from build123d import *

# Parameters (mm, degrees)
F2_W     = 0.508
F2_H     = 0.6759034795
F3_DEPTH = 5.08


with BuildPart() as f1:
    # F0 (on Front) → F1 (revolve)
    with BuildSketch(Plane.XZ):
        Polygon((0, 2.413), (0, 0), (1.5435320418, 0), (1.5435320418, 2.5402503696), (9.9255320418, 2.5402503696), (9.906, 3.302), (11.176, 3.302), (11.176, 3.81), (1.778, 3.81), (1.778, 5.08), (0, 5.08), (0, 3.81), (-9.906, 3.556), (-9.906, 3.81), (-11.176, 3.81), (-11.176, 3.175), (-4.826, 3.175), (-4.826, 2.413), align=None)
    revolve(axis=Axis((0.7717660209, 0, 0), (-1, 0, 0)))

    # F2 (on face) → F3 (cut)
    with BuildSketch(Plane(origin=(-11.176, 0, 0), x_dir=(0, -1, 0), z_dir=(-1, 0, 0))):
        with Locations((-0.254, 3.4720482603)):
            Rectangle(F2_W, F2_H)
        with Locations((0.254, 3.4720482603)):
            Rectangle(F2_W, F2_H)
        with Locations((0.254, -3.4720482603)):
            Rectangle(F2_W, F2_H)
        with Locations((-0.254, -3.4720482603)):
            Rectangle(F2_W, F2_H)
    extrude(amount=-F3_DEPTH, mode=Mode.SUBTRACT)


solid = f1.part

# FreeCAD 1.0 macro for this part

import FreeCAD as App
import Part
import Sketcher

V = App.Vector
Q = App.Units.Quantity


def add_polygon(sketch, points):
    """Adds a closed chain of lines whose ends are joined by coincident constraints."""
    first, n = sketch.GeometryCount, len(points)
    for a, b in zip(points, points[1:] + points[:1]):
        sketch.addGeometry(Part.LineSegment(App.Vector(*a, 0), App.Vector(*b, 0)), False)
    for i in range(n):
        sketch.addConstraint(Sketcher.Constraint("Coincident", first + i, 2, first + (i + 1) % n, 1))

doc = App.newDocument("Part")
params = doc.addObject("Spreadsheet::Sheet", "Params")
for row, (alias, value) in enumerate([
    ("sketch1_width", "0.33 in"),
    ("sketch1_width2", "0.05 in"),
    ("sketch1_width3", "0.37 in"),
    ("sketch1_width4", "0.07 in"),
    ("sketch1_width5", "0.25 in"),
    ("revolution_angle", "360 deg"),
    ("sketch2_width", "0.04 in"),
    ("pocket1_length", "0.2 in"),
], start=1):
    params.set(f"A{row}", alias)
    params.set(f"B{row}", "=" + value)
    params.setAlias(f"B{row}", alias)

body = doc.addObject("PartDesign::Body", "Body")

# Sketch on XZ plane
sketch1 = body.newObject("Sketcher::SketchObject", "Sketch")
sketch1.AttachmentSupport = (doc.getObject("XZ_Plane"), [""])
sketch1.MapMode = "FlatFace"
add_polygon(sketch1, [(0, 2.413), (0, 0), (1.543532, 0), (1.543532, 2.54025), (9.925532, 2.54025), (9.906, 3.302), (11.176, 3.302), (11.176, 3.81), (1.778, 3.81), (1.778, 5.08), (0, 5.08), (0, 3.81), (-9.906, 3.556), (-9.906, 3.81), (-11.176, 3.81), (-11.176, 3.175), (-4.826, 3.175), (-4.826, 2.413)])  # lines 0-17
sketch1.addConstraint(Sketcher.Constraint("Vertical", 0))
sketch1.addConstraint(Sketcher.Constraint("Horizontal", 1))
sketch1.addConstraint(Sketcher.Constraint("Vertical", 2))
sketch1.addConstraint(Sketcher.Constraint("Horizontal", 3))
sketch1.addConstraint(Sketcher.Constraint("Horizontal", 5))
sketch1.addConstraint(Sketcher.Constraint("Vertical", 6))
sketch1.addConstraint(Sketcher.Constraint("Horizontal", 7))
sketch1.addConstraint(Sketcher.Constraint("Vertical", 8))
sketch1.addConstraint(Sketcher.Constraint("Horizontal", 9))
sketch1.addConstraint(Sketcher.Constraint("Vertical", 10))
sketch1.addConstraint(Sketcher.Constraint("Vertical", 12))
sketch1.addConstraint(Sketcher.Constraint("Horizontal", 13))
sketch1.addConstraint(Sketcher.Constraint("Vertical", 14))
sketch1.addConstraint(Sketcher.Constraint("Horizontal", 15))
sketch1.addConstraint(Sketcher.Constraint("Vertical", 16))
sketch1.addConstraint(Sketcher.Constraint("Horizontal", 17))
sketch1.addConstraint(Sketcher.Constraint("Coincident", 0, 2, -1, 1))
sketch1.addConstraint(Sketcher.Constraint("Symmetric", 6, 2, 13, 2, -2))
sketch1.addConstraint(Sketcher.Constraint("PointOnObject", 9, 2, -2))
sketch1.addConstraint(Sketcher.Constraint("Perpendicular", 4, 11))
sketch1.addConstraint(Sketcher.Constraint("Horizontal", 7, 2, 10, 2))
sketch1.addConstraint(Sketcher.Constraint("Equal", 5, 13))
sketch1.addConstraint(Sketcher.Constraint("Equal", 13, 8))
sketch1.addConstraint(Sketcher.Constraint("DistanceX", 3, 1, 3, 2, Q("0.33 in")))
sketch1.addConstraint(Sketcher.Constraint("DistanceX", 5, 1, 5, 2, Q("0.05 in")))
sketch1.addConstraint(Sketcher.Constraint("DistanceX", 7, 2, 7, 1, Q("0.37 in")))
sketch1.addConstraint(Sketcher.Constraint("DistanceX", 9, 2, 9, 1, Q("0.07 in")))
sketch1.addConstraint(Sketcher.Constraint("DistanceX", 15, 1, 15, 2, Q("0.25 in")))
sketch1.addConstraint(Sketcher.Constraint("DistanceY", 6, 1, 6, 2, Q("0.02 in")))
sketch1.addConstraint(Sketcher.Constraint("DistanceY", 12, 1, 12, 2, Q("0.01 in")))
sketch1.addConstraint(Sketcher.Constraint("DistanceY", 16, 2, 16, 1, Q("0.03 in")))
sketch1.addConstraint(Sketcher.Constraint("DistanceY", -1, 1, 8, 2, Q("0.2 in")))
sketch1.addConstraint(Sketcher.Constraint("Distance", 4, Q("0.03 in")))
sketch1.addConstraint(Sketcher.Constraint("DistanceY", 0, 2, 0, 1, Q("0.095 in")))
sketch1.setExpression("Constraints[41]", "Params.sketch1_width")
sketch1.setExpression("Constraints[42]", "Params.sketch1_width2")
sketch1.setExpression("Constraints[43]", "Params.sketch1_width3")
sketch1.setExpression("Constraints[44]", "Params.sketch1_width4")
sketch1.setExpression("Constraints[45]", "Params.sketch1_width5")
revolution = body.newObject("PartDesign::Revolution", "Revolution")
revolution.Profile = sketch1
revolution.ReferenceAxis = (sketch1, ["H_Axis"])
revolution.setExpression("Angle", "Params.revolution_angle")

# Sketch on YZ plane
sketch2 = body.newObject("Sketcher::SketchObject", "Sketch001")
sketch2.AttachmentSupport = (doc.getObject("YZ_Plane"), [""])
sketch2.MapMode = "FlatFace"
sketch2.AttachmentOffset = App.Placement(V(0, 0, -0.44 * 25.4), App.Rotation())
add_polygon(sketch2, [(0.508, 3.81), (0.508, 3.134097), (-0.508, 3.134097), (-0.508, 3.81)])  # lines 0-3
add_polygon(sketch2, [(-0.508, -3.81), (-0.508, -3.134097), (0.508, -3.134097), (0.508, -3.81)])  # lines 4-7
sketch2.addConstraint(Sketcher.Constraint("Vertical", 0))
sketch2.addConstraint(Sketcher.Constraint("Horizontal", 1))
sketch2.addConstraint(Sketcher.Constraint("Vertical", 2))
sketch2.addConstraint(Sketcher.Constraint("Horizontal", 3))
sketch2.addConstraint(Sketcher.Constraint("Vertical", 4))
sketch2.addConstraint(Sketcher.Constraint("Horizontal", 5))
sketch2.addConstraint(Sketcher.Constraint("Vertical", 6))
sketch2.addConstraint(Sketcher.Constraint("Horizontal", 7))
sketch2.addConstraint(Sketcher.Constraint("Symmetric", 0, 2, 4, 2, -1, 1))
sketch2.addConstraint(Sketcher.Constraint("Symmetric", 2, 2, 6, 2, -1, 1))
sketch2.addConstraint(Sketcher.Constraint("Vertical", 2, 2, 4, 2))
sketch2.addConstraint(Sketcher.Constraint("DistanceX", 1, 2, 1, 1, Q("0.04 in")))
sketch2.addConstraint(Sketcher.Constraint("DistanceY", 6, 2, 3, 2, Q("0.3 in")))
sketch2.addConstraint(Sketcher.Constraint("DistanceY", 0, 2, 0, 1, Q("0.675903 mm")))
sketch2.setExpression("Constraints[19]", "Params.sketch2_width")
pocket1 = body.newObject("PartDesign::Pocket", "Pocket")
pocket1.Profile = sketch2
pocket1.setExpression("Length", "Params.pocket1_length")
pocket1.Reversed = True

doc.recompute()
